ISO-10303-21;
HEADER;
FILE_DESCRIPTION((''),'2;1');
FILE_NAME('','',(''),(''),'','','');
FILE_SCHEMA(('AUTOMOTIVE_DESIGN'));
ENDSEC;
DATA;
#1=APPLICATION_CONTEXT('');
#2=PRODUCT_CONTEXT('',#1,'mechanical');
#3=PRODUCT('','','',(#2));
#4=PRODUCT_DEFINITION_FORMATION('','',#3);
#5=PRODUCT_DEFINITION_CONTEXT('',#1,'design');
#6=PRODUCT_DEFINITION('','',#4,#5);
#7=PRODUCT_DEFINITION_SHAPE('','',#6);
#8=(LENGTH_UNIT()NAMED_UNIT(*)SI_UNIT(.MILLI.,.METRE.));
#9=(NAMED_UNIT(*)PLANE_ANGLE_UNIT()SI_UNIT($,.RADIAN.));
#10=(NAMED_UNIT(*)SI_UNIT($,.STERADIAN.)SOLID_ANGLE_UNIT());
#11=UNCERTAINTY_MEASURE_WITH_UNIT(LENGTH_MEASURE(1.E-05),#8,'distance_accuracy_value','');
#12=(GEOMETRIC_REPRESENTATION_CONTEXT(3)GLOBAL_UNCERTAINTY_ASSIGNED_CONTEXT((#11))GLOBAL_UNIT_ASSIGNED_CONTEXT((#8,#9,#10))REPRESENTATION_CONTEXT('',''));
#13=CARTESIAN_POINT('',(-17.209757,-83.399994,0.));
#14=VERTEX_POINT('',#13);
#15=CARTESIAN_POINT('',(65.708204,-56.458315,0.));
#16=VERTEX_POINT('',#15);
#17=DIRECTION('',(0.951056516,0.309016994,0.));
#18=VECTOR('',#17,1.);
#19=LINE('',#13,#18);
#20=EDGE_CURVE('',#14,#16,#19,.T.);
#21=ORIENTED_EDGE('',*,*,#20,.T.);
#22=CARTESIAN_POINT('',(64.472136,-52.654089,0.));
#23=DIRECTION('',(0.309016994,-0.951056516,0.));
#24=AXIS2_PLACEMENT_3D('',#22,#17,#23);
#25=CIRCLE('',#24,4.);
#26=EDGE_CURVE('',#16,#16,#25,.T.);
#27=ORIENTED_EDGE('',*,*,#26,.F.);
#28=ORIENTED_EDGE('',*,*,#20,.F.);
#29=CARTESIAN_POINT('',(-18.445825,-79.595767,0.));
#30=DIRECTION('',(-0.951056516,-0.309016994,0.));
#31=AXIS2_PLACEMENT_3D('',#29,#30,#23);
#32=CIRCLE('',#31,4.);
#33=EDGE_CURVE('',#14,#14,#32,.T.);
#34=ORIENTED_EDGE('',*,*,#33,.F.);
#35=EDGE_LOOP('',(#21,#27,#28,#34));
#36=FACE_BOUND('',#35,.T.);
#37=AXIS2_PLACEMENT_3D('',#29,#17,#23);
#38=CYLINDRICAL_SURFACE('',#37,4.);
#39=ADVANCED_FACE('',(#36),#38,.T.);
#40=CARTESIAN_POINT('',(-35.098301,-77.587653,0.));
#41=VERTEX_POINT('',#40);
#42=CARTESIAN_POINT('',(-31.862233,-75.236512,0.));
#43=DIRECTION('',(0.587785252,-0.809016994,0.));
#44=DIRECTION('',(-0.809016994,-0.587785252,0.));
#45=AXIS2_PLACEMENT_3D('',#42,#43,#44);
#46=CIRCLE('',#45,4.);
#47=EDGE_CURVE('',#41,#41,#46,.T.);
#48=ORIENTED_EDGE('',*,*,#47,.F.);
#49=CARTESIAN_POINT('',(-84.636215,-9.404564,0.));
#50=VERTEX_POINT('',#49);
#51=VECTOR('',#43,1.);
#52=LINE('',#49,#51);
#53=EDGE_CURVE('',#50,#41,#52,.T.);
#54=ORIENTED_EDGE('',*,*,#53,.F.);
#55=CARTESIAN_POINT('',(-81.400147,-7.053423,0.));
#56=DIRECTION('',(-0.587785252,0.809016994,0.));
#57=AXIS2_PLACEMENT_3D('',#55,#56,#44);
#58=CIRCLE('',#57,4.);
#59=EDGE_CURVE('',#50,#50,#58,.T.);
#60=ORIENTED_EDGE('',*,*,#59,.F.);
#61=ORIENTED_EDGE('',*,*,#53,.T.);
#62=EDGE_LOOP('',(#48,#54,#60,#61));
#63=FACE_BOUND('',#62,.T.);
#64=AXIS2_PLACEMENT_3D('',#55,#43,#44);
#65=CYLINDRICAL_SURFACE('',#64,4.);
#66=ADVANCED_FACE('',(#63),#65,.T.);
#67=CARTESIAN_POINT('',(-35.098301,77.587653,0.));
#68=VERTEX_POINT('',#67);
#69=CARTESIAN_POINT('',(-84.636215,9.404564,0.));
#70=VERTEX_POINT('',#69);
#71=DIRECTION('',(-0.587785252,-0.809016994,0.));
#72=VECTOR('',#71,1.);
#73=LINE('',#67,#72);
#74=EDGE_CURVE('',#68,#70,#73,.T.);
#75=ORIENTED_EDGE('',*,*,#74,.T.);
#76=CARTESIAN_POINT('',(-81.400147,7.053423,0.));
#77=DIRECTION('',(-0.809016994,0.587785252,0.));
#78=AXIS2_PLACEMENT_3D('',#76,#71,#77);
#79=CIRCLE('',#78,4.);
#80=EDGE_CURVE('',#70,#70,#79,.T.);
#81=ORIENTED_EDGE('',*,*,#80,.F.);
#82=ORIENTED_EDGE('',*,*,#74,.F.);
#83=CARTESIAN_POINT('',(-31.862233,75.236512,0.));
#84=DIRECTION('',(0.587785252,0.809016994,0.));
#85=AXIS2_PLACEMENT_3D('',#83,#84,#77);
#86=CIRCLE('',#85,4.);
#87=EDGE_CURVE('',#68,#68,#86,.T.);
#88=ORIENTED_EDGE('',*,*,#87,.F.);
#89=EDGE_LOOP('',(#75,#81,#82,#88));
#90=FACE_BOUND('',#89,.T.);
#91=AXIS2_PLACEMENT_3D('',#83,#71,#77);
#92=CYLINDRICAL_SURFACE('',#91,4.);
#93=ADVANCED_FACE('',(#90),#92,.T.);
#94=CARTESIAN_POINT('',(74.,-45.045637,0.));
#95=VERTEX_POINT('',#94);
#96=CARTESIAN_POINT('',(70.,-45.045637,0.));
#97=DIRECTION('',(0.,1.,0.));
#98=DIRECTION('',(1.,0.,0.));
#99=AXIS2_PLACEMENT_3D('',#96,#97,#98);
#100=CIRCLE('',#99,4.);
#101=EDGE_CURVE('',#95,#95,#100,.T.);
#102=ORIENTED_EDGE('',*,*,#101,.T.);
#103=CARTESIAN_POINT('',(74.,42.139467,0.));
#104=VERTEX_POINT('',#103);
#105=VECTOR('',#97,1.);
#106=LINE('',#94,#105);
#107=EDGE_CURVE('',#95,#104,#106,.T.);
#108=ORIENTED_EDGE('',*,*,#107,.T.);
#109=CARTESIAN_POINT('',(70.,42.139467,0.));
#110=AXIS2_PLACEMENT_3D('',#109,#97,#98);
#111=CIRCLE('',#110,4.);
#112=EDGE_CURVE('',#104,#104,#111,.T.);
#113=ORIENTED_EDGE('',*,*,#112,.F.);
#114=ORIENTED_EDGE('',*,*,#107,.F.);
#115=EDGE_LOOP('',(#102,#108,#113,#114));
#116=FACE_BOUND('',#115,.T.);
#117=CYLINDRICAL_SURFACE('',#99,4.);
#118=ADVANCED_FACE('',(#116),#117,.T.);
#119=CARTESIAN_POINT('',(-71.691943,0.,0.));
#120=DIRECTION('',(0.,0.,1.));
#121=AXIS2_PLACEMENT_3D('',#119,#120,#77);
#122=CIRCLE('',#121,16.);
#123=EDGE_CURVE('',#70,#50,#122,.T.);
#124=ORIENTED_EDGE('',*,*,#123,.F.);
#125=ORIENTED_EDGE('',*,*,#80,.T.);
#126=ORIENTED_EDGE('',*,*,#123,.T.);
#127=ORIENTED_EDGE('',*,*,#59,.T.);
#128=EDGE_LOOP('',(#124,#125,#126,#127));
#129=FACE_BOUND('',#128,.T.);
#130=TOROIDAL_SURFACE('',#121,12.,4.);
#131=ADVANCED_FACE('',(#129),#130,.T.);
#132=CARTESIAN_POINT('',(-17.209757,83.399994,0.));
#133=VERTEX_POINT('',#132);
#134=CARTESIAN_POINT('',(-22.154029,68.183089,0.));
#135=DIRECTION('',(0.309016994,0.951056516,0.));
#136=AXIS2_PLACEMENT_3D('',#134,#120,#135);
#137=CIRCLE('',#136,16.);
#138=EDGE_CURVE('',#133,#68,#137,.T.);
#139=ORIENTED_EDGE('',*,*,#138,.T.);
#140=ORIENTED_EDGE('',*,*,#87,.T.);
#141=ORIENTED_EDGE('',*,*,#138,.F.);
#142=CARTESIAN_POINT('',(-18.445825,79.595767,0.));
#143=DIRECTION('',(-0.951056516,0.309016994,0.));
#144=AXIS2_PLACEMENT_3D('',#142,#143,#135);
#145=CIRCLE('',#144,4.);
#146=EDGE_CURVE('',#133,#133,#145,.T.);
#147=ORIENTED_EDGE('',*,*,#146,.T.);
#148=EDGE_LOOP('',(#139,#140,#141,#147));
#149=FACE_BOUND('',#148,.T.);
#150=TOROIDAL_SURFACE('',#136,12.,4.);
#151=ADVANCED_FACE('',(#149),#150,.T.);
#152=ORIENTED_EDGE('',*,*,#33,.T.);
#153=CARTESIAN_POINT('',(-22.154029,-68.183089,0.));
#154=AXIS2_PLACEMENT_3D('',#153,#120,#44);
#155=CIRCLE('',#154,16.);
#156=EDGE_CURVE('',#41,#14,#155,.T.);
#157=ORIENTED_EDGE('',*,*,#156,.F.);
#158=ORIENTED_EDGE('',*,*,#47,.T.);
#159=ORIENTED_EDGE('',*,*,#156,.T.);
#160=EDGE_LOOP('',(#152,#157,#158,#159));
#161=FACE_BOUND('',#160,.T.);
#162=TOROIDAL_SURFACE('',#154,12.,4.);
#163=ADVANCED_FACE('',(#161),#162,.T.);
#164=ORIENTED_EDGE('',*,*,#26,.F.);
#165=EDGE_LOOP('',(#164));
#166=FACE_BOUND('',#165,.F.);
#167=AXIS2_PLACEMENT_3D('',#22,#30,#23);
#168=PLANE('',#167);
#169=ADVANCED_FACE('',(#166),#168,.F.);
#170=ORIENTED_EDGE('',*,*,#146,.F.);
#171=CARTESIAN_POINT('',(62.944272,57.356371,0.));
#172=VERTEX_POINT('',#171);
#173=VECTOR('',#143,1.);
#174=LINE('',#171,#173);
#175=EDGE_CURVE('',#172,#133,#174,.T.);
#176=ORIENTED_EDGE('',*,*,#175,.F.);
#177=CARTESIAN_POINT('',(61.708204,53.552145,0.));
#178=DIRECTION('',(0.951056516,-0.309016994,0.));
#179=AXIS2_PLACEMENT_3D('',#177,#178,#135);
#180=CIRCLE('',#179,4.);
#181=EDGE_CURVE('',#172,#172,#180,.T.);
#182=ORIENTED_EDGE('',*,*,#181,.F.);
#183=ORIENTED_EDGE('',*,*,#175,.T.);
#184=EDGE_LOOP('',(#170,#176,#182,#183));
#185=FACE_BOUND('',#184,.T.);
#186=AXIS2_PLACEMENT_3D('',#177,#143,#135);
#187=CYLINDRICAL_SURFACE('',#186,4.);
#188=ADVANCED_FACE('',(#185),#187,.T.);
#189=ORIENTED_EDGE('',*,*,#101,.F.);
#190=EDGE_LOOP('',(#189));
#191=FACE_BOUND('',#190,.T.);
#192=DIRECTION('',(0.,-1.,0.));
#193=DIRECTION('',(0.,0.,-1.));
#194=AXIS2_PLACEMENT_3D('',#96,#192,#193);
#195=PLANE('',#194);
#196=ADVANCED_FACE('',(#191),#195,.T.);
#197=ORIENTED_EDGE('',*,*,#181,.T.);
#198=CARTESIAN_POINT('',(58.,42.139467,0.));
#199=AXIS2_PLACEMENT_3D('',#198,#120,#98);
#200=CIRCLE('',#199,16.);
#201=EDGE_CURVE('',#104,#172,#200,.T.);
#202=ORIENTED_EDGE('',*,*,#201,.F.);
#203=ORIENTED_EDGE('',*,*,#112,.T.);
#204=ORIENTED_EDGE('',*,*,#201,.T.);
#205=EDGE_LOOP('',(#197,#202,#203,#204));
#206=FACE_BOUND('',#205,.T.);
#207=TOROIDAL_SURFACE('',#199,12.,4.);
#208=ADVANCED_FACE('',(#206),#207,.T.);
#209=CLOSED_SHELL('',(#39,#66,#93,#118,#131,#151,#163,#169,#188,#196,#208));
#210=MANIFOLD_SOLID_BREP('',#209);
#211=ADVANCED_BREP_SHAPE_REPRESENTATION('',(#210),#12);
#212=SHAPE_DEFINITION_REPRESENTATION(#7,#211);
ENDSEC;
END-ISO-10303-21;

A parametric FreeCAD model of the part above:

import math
import FreeCAD as App
import Part
import Sketcher
Q = App.Units.Quantity

doc = App.newDocument("Part")
body = doc.addObject("PartDesign::Body", "Body")

# Sketch on XZ plane
sketch1 = body.newObject("Sketcher::SketchObject", "Sketch")
sketch1.AttachmentSupport = (doc.getObject("XZ_Plane"), [""])
sketch1.MapMode = "FlatFace"
sketch1.addGeometry(Part.Circle(App.Vector(70, 0, 0), App.Vector(0, 0, 1), 4), False)
sketch1.addConstraint(Sketcher.Constraint("PointOnObject", 0, 3, -1))
sketch1.addConstraint(Sketcher.Constraint("Diameter", 0, Q("8 mm")))
sketch1.addConstraint(Sketcher.Constraint("DistanceX", -1, 1, 0, 3, Q("70 mm")))

# Sketch on XY plane
sketch2 = body.newObject("Sketcher::SketchObject", "Sketch001")
sketch2.AttachmentSupport = (doc.getObject("XY_Plane"), [""])
sketch2.MapMode = "FlatFace"
sketch2.addGeometry(Part.LineSegment(App.Vector(70, -45, 0), App.Vector(70, 42, 0)), False)
sketch2.addGeometry(Part.ArcOfCircle(Part.Circle(App.Vector(58, 42, 0), App.Vector(0, 0, 1), 12), math.radians(0), math.radians(72)), False)
sketch2.addGeometry(Part.LineSegment(App.Vector(62, 54, 0), App.Vector(-18, 80, 0)), False)
sketch2.addGeometry(Part.ArcOfCircle(Part.Circle(App.Vector(-22, 68, 0), App.Vector(0, 0, 1), 12), math.radians(72), math.radians(144)), False)
sketch2.addGeometry(Part.LineSegment(App.Vector(-32, 75, 0), App.Vector(-81, 7, 0)), False)
sketch2.addGeometry(Part.ArcOfCircle(Part.Circle(App.Vector(-72, 0, 0), App.Vector(0, 0, 1), 12), math.radians(144), math.radians(216)), False)
sketch2.addGeometry(Part.LineSegment(App.Vector(-81, -7, 0), App.Vector(-32, -75, 0)), False)
sketch2.addGeometry(Part.ArcOfCircle(Part.Circle(App.Vector(-22, -68, 0), App.Vector(0, 0, 1), 12), math.radians(-144), math.radians(-72)), False)
sketch2.addGeometry(Part.LineSegment(App.Vector(-18, -80, 0), App.Vector(64, -53, 0)), False)
sketch2.addConstraint(Sketcher.Constraint("Tangent", 0, 2, 1, 1))
sketch2.addConstraint(Sketcher.Constraint("Tangent", 1, 2, 2, 1))
sketch2.addConstraint(Sketcher.Constraint("Tangent", 2, 2, 3, 1))
sketch2.addConstraint(Sketcher.Constraint("Tangent", 3, 2, 4, 1))
sketch2.addConstraint(Sketcher.Constraint("Tangent", 4, 2, 5, 1))
sketch2.addConstraint(Sketcher.Constraint("Tangent", 5, 2, 6, 1))
sketch2.addConstraint(Sketcher.Constraint("Tangent", 6, 2, 7, 1))
sketch2.addConstraint(Sketcher.Constraint("Tangent", 7, 2, 8, 1))
sketch2.addConstraint(Sketcher.Constraint("Vertical", 0))
sketch2.addConstraint(Sketcher.Constraint("Equal", 1, 3))
sketch2.addConstraint(Sketcher.Constraint("Equal", 3, 5))
sketch2.addConstraint(Sketcher.Constraint("Equal", 5, 7))
sketch2.addConstraint(Sketcher.Constraint("Symmetric", 3, 3, 7, 3, -1))
sketch2.addConstraint(Sketcher.Constraint("PointOnObject", 5, 3, -1))
sketch2.addConstraint(Sketcher.Constraint("Vertical", 2, 2, 7, 2))
sketch2.addConstraint(Sketcher.Constraint("Equal", 2, 4))
sketch2.addConstraint(Sketcher.Constraint("Radius", 1, Q("12 mm")))
sketch2.addConstraint(Sketcher.Constraint("Angle", 2, Q("162 deg")))
sketch2.addConstraint(Sketcher.Constraint("Angle", 4, Q("-126 deg")))
sketch2.addConstraint(Sketcher.Constraint("DistanceX", -1, 1, 1, 3, Q("58 mm")))
sketch2.addConstraint(Sketcher.Constraint("DistanceY", 7, 3, 8, 2, Q("15.529 mm")))
sketch2.addConstraint(Sketcher.Constraint("DistanceY", 1, 3, 2, 2, Q("37.456301 mm")))
sketch2.addConstraint(Sketcher.Constraint("DistanceY", 0, 1, 0, 2, Q("87.185103 mm")))
doc.recompute()

additivepipe = body.newObject("PartDesign::AdditivePipe", "AdditivePipe")
additivepipe.Profile = sketch1
additivepipe.Spine = (sketch2, ["Edge1", "Edge2", "Edge3", "Edge4", "Edge5", "Edge6", "Edge7", "Edge8", "Edge9"])

doc.recompute()
